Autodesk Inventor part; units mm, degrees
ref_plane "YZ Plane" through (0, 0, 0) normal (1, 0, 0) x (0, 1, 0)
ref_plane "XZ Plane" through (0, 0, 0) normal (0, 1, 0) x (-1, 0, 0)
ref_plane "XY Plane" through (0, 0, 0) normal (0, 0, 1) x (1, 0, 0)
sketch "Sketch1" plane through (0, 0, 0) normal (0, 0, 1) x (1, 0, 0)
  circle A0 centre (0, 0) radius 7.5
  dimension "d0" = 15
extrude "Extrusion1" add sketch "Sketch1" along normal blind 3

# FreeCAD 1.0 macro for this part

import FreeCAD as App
import Part
import Sketcher

V = App.Vector
Q = App.Units.Quantity

doc = App.newDocument("Part")
body = doc.addObject("PartDesign::Body", "Body")

sketch1 = body.newObject("Sketcher::SketchObject", "Sketch")
sketch1.AttachmentSupport = (doc.getObject("XY_Plane"), [""])
sketch1.MapMode = "FlatFace"
sketch1.addGeometry(Part.Circle(V(0, 0, 0), V(0, 0, 1), 8), False)
sketch1.addConstraint([
    Sketcher.Constraint("Coincident", 0, 3, -1, 1),
    Sketcher.Constraint("Diameter", 0, Q("15 mm")),
])
pad1 = body.newObject("PartDesign::Pad", "Pad")
pad1.Profile = sketch1
pad1.Length = 3

doc.recompute()
